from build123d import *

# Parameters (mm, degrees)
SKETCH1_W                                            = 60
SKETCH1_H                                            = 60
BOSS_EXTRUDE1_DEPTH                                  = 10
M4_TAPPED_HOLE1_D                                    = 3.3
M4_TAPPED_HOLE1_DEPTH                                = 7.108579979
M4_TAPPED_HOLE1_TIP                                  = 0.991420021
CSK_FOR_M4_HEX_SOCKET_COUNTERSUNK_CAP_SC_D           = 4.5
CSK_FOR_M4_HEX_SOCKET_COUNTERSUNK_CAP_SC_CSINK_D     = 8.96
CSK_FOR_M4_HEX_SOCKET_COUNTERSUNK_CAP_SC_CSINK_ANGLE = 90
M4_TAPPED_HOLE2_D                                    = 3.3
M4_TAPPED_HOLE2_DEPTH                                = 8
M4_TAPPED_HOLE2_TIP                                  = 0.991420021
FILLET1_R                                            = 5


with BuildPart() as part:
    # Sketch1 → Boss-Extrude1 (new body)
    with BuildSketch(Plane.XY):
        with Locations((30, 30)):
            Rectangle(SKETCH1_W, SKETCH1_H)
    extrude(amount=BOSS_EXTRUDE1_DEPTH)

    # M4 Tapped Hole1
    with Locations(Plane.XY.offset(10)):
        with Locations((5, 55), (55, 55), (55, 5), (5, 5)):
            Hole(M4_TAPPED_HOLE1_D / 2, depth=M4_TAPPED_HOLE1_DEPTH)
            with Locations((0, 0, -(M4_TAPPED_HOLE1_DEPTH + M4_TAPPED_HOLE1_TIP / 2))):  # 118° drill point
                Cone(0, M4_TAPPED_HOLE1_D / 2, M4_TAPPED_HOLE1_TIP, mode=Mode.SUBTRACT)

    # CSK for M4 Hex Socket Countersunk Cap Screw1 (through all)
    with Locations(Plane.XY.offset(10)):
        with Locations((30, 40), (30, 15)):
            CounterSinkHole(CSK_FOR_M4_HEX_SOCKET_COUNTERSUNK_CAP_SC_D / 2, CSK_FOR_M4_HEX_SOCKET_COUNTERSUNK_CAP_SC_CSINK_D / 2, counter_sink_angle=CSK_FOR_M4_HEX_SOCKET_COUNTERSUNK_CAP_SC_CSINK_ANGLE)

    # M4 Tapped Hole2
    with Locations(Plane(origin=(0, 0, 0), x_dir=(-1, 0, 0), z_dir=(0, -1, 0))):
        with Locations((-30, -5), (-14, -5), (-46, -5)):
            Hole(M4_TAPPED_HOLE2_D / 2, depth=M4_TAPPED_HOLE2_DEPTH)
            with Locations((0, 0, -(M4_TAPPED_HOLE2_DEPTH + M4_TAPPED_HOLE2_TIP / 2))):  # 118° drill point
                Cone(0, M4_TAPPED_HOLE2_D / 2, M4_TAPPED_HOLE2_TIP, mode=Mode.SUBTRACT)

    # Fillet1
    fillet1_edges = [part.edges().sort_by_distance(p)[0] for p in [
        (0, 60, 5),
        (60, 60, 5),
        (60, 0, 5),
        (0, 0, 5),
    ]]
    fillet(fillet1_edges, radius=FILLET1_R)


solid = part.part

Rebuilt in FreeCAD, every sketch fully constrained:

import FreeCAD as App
import Part
import Sketcher
from FreeCAD import Vector


def edges_at(feature, points):
    """Names of the edges that pass closest to the given points."""
    edges = feature.Shape.Edges
    near = lambda p: min(range(len(edges)), key=lambda i: edges[i].distToShape(Part.Vertex(*p))[0])
    return sorted({f"Edge{near(p) + 1}" for p in points})


def add_polygon(sketch, points):
    """Adds a closed chain of lines whose ends are joined by coincident constraints."""
    first, n = sketch.GeometryCount, len(points)
    for a, b in zip(points, points[1:] + points[:1]):
        sketch.addGeometry(Part.LineSegment(App.Vector(*a, 0), App.Vector(*b, 0)), False)
    for i in range(n):
        sketch.addConstraint(Sketcher.Constraint("Coincident", first + i, 2, first + (i + 1) % n, 1))

doc = App.newDocument("Part")
body = doc.addObject("PartDesign::Body", "Body")

# Sketch on XY plane
sketch1 = doc.addObject("Sketcher::SketchObject", "Sketch")
body.addObject(sketch1)
sketch1.AttachmentSupport = (doc.XY_Plane, [""])
sketch1.MapMode = "FlatFace"
add_polygon(sketch1, [(0, 60), (0, 0), (60, 0), (60, 60)])  # lines 0-3
sketch1.addConstraint([
    Sketcher.Constraint("Vertical", 0),
    Sketcher.Constraint("Horizontal", 1),
    Sketcher.Constraint("Vertical", 2),
    Sketcher.Constraint("Horizontal", 3),
    Sketcher.Constraint("Coincident", 0, 2, -1, 1),
    Sketcher.Constraint("Equal", 3, 0),
    Sketcher.Constraint("DistanceX", 1, 1, 1, 2, 60.0),
])
pad1 = doc.addObject("PartDesign::Pad", "Pad")
body.addObject(pad1)
pad1.Profile = sketch1
pad1.Length = 10

# Sketch on XY plane
sketch2 = doc.addObject("Sketcher::SketchObject", "Sketch001")
body.addObject(sketch2)
sketch2.AttachmentSupport = (doc.XY_Plane, [""])
sketch2.MapMode = "FlatFace"
sketch2.AttachmentOffset = App.Placement(Vector(0, 0, 10), App.Rotation())
sketch2.addGeometry([
    Part.Circle(Vector(5, 55, 0), Vector(0, 0, 1), 1.6),
    Part.Circle(Vector(55, 55, 0), Vector(0, 0, 1), 1.6),
    Part.Circle(Vector(55, 5, 0), Vector(0, 0, 1), 1.6),
    Part.Circle(Vector(5, 5, 0), Vector(0, 0, 1), 1.6),
], False)
sketch2.addConstraint([
    Sketcher.Constraint("Equal", 0, 1),
    Sketcher.Constraint("Equal", 1, 2),
    Sketcher.Constraint("Equal", 2, 3),
    Sketcher.Constraint("Horizontal", 0, 3, 1, 3),
    Sketcher.Constraint("Horizontal", 2, 3, 3, 3),
    Sketcher.Constraint("Vertical", 1, 3, 2, 3),
    Sketcher.Constraint("Vertical", 0, 3, 3, 3),
    Sketcher.Constraint("Diameter", 0, 3.3),
    Sketcher.Constraint("DistanceX", -1, 1, 0, 3, 5.0),
    Sketcher.Constraint("DistanceY", -1, 1, 0, 3, 55.0),
    Sketcher.Constraint("DistanceX", -1, 1, 1, 3, 55.0),
    Sketcher.Constraint("DistanceY", -1, 1, 2, 3, 5.0),
])
doc.recompute()
hole = doc.addObject("PartDesign::Hole", "Hole")
body.addObject(hole)
hole.Profile = sketch2
hole.ThreadType = "None"
hole.Diameter = 3.3
hole.DepthType = "Dimension"
hole.Depth = 7.10858
hole.DrillPoint = "Angled"
hole.DrillPointAngle = 118

# Sketch on XY plane
sketch3 = doc.addObject("Sketcher::SketchObject", "Sketch002")
body.addObject(sketch3)
sketch3.AttachmentSupport = (doc.XY_Plane, [""])
sketch3.MapMode = "FlatFace"
sketch3.AttachmentOffset = App.Placement(Vector(0, 0, 10), App.Rotation())
sketch3.addGeometry([
    Part.Circle(Vector(30, 40, 0), Vector(0, 0, 1), 2.2),
    Part.Circle(Vector(30, 15, 0), Vector(0, 0, 1), 2.2),
], False)
sketch3.addConstraint([
    Sketcher.Constraint("Equal", 0, 1),
    Sketcher.Constraint("Vertical", 0, 3, 1, 3),
    Sketcher.Constraint("Diameter", 0, 4.5),
    Sketcher.Constraint("DistanceX", -1, 1, 0, 3, 30.0),
    Sketcher.Constraint("DistanceY", -1, 1, 0, 3, 40.0),
    Sketcher.Constraint("DistanceY", -1, 1, 1, 3, 15.0),
])
doc.recompute()
hole2 = doc.addObject("PartDesign::Hole", "Hole001")
body.addObject(hole2)
hole2.Profile = sketch3
hole2.ThreadType = "None"
hole2.Diameter = 4.5
hole2.DepthType = "ThroughAll"
hole2.HoleCutType = "Countersink"
hole2.HoleCutDiameter = 8.96
hole2.HoleCutCountersinkAngle = 90

# Sketch on XZ plane
sketch4 = doc.addObject("Sketcher::SketchObject", "Sketch003")
body.addObject(sketch4)
sketch4.AttachmentSupport = (doc.XZ_Plane, [""])
sketch4.MapMode = "FlatFace"
sketch4.addGeometry([
    Part.Circle(Vector(30, 5, 0), Vector(0, 0, 1), 1.6),
    Part.Circle(Vector(14, 5, 0), Vector(0, 0, 1), 1.6),
    Part.Circle(Vector(46, 5, 0), Vector(0, 0, 1), 1.6),
], False)
sketch4.addConstraint([
    Sketcher.Constraint("Equal", 0, 1),
    Sketcher.Constraint("Equal", 1, 2),
    Sketcher.Constraint("Horizontal", 0, 3, 1, 3),
    Sketcher.Constraint("Horizontal", 1, 3, 2, 3),
    Sketcher.Constraint("Diameter", 0, 3.3),
    Sketcher.Constraint("DistanceX", -1, 1, 0, 3, 30.0),
    Sketcher.Constraint("DistanceY", -1, 1, 0, 3, 5.0),
    Sketcher.Constraint("DistanceX", -1, 1, 1, 3, 14.0),
    Sketcher.Constraint("DistanceX", -1, 1, 2, 3, 46.0),
])
doc.recompute()
hole3 = doc.addObject("PartDesign::Hole", "Hole002")
body.addObject(hole3)
hole3.Profile = sketch4
hole3.ThreadType = "None"
hole3.Diameter = 3.3
hole3.DepthType = "Dimension"
hole3.Depth = 8
hole3.DrillPoint = "Angled"
hole3.DrillPointAngle = 118
doc.recompute()

fillet = doc.addObject("PartDesign::Fillet", "Fillet")
body.addObject(fillet)
fillet.Base = (hole3, edges_at(hole3, [
    (0, 60, 5),
    (60, 60, 5),
    (60, 0, 5),
    (0, 0, 5),
]))
fillet.Radius = 5

doc.recompute()
